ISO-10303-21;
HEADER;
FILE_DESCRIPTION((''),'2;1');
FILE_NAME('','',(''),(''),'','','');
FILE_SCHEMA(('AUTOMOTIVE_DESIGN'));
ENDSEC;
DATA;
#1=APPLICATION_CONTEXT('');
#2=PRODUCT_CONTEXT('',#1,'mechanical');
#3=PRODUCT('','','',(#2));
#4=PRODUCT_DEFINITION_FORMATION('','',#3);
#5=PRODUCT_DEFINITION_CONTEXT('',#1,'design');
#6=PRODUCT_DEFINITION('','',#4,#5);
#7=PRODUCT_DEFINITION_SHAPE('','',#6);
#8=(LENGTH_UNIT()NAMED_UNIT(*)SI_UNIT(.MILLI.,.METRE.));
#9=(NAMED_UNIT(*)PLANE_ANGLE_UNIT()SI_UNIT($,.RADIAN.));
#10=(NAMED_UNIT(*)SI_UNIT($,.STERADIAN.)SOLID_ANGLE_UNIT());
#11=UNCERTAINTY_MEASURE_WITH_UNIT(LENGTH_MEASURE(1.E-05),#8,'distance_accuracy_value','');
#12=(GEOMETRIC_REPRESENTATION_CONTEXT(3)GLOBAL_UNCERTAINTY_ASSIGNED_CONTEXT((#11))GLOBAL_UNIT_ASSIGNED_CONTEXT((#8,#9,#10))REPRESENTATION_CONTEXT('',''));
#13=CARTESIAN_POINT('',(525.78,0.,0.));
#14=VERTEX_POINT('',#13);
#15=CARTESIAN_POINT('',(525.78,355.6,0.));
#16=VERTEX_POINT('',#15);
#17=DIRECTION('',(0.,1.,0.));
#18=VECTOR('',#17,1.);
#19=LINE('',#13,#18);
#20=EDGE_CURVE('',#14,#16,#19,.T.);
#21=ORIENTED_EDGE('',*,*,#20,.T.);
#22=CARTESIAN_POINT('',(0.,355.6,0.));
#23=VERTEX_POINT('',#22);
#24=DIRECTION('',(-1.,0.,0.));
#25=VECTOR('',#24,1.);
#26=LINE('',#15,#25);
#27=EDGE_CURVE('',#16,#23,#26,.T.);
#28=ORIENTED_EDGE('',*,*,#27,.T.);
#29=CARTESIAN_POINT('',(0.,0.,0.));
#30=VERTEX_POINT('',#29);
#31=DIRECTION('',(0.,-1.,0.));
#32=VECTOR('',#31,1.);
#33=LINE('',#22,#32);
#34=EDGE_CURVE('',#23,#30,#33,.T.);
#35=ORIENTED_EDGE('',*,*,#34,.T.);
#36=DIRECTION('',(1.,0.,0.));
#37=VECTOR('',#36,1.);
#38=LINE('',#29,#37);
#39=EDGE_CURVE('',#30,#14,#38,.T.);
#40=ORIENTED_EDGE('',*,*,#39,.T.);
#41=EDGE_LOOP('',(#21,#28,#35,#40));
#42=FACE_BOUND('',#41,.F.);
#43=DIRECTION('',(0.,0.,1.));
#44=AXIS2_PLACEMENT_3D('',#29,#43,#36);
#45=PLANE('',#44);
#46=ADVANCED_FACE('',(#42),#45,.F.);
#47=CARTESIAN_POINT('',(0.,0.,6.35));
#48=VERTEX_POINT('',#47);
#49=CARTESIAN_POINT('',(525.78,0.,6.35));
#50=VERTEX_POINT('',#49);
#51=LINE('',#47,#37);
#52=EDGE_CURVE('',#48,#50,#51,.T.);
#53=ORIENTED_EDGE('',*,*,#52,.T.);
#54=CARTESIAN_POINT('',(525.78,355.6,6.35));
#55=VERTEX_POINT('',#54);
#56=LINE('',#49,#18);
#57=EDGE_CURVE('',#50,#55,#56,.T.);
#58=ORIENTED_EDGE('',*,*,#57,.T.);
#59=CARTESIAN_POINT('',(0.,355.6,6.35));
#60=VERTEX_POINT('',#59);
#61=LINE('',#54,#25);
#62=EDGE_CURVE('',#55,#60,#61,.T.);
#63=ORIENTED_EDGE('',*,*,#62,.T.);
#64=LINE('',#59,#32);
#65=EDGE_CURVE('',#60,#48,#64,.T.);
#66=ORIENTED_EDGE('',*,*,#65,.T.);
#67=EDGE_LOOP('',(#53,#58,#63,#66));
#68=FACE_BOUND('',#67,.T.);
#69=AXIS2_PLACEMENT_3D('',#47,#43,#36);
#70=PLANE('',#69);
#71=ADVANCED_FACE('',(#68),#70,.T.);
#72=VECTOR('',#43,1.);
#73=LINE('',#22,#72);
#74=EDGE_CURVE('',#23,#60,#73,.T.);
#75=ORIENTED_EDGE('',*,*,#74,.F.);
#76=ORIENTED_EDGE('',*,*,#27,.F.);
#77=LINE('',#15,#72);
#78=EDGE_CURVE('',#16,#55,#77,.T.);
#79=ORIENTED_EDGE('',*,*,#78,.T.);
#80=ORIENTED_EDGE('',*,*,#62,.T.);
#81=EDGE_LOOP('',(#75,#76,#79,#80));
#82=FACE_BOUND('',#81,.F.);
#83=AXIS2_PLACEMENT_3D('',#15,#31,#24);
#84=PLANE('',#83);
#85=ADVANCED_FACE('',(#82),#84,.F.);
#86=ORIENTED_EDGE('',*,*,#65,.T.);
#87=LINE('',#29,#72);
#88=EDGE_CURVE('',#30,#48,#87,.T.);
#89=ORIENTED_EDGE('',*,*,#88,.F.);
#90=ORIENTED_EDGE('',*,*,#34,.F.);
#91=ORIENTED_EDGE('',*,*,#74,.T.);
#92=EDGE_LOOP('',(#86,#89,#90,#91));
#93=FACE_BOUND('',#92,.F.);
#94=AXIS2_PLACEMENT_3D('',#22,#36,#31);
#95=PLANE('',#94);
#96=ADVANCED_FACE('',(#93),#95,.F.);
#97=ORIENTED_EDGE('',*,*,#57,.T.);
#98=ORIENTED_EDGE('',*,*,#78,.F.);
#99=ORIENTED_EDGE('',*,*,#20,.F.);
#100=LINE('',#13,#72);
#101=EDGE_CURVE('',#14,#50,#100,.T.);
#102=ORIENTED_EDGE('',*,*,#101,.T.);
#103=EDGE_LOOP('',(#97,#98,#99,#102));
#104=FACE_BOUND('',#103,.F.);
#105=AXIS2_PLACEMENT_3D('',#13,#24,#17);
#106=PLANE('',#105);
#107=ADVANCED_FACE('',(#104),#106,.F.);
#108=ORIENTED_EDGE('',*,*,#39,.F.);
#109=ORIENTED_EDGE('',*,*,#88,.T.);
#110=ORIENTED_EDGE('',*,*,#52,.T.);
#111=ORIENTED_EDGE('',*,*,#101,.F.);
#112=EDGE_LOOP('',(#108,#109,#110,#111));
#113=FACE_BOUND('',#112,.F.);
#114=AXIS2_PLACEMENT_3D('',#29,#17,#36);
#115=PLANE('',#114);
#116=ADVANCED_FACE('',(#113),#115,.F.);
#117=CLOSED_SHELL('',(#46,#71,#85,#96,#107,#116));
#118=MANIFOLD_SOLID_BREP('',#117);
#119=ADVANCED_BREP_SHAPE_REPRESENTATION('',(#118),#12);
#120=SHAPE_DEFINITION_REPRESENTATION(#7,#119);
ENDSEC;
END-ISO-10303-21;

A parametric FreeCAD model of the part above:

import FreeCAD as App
import Part
import Sketcher
Q = App.Units.Quantity

doc = App.newDocument("Part")
params = doc.addObject("Spreadsheet::Sheet", "Params")
for row, (alias, value) in enumerate([
    ("sketch1_height", "14 in"),
    ("sketch1_width", "20.7 in"),
    ("pad1_length", "0.25 in"),
], start=1):
    params.set(f"A{row}", alias)
    params.set(f"B{row}", "=" + value)
    params.setAlias(f"B{row}", alias)

body = doc.addObject("PartDesign::Body", "Body")

# Sketch on XY plane
sketch1 = doc.addObject("Sketcher::SketchObject", "Sketch")
body.addObject(sketch1)
sketch1.AttachmentSupport = (doc.XY_Plane, [""])
sketch1.MapMode = "FlatFace"
sketch1.addGeometry(Part.LineSegment(App.Vector(0, 356, 0), App.Vector(0, 0, 0)), False)
sketch1.addGeometry(Part.LineSegment(App.Vector(0, 0, 0), App.Vector(526, 0, 0)), False)
sketch1.addGeometry(Part.LineSegment(App.Vector(526, 0, 0), App.Vector(526, 356, 0)), False)
sketch1.addGeometry(Part.LineSegment(App.Vector(526, 356, 0), App.Vector(0, 356, 0)), False)
sketch1.addConstraint(Sketcher.Constraint("Coincident", 0, 2, 1, 1))
sketch1.addConstraint(Sketcher.Constraint("Coincident", 1, 2, 2, 1))
sketch1.addConstraint(Sketcher.Constraint("Coincident", 2, 2, 3, 1))
sketch1.addConstraint(Sketcher.Constraint("Coincident", 3, 2, 0, 1))
sketch1.addConstraint(Sketcher.Constraint("Vertical", 0))
sketch1.addConstraint(Sketcher.Constraint("Horizontal", 1))
sketch1.addConstraint(Sketcher.Constraint("Vertical", 2))
sketch1.addConstraint(Sketcher.Constraint("Horizontal", 3))
sketch1.addConstraint(Sketcher.Constraint("Coincident", 0, 2, -1, 1))
sketch1.addConstraint(Sketcher.Constraint("DistanceY", 0, 2, 0, 1, Q("14 in")))
sketch1.addConstraint(Sketcher.Constraint("DistanceX", 1, 1, 1, 2, Q("20.7 in")))
sketch1.setExpression("Constraints[9]", "Params.sketch1_height")
sketch1.setExpression("Constraints[10]", "Params.sketch1_width")
pad1 = doc.addObject("PartDesign::Pad", "Pad")
body.addObject(pad1)
pad1.Profile = sketch1
pad1.setExpression("Length", "Params.pad1_length")

doc.recompute()
